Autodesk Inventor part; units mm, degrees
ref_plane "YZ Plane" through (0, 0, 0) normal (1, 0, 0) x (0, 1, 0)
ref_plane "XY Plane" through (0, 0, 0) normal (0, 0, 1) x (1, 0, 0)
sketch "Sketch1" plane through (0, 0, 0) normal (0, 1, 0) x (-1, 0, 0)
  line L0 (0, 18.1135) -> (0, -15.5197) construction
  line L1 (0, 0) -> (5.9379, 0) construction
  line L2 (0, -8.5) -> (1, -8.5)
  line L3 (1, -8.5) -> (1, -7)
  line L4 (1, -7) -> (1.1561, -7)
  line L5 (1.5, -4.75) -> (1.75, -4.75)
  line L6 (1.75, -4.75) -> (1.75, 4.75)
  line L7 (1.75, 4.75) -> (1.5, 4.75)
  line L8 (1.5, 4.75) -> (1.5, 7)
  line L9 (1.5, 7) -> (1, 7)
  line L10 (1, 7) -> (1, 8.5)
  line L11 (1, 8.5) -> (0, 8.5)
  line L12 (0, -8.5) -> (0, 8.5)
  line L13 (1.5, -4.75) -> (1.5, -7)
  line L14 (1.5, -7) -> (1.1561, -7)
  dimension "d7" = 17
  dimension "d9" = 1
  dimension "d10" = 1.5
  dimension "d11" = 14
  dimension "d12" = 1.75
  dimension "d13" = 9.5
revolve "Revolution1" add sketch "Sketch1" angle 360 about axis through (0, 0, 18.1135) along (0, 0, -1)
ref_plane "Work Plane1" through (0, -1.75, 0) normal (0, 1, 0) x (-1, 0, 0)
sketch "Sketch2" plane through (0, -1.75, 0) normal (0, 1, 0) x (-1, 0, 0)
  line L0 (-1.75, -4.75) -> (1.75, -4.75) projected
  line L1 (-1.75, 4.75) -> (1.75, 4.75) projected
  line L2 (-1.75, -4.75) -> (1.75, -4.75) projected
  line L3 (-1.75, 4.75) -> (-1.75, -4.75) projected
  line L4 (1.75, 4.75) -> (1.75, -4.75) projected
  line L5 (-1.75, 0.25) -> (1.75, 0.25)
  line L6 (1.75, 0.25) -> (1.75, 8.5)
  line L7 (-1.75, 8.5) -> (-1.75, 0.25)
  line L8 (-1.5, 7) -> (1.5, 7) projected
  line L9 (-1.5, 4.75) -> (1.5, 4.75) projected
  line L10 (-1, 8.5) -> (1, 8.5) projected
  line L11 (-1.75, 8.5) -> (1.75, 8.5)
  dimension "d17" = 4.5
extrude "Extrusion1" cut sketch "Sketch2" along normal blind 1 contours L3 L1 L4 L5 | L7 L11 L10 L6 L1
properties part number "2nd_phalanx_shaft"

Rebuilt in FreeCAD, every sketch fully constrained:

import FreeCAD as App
import Part
import Sketcher
from FreeCAD import Vector

doc = App.newDocument("Part")
body = doc.addObject("PartDesign::Body", "Body")

sketch1 = body.newObject("Sketcher::SketchObject", "Sketch")
sketch1.AttachmentSupport = (doc.getObject("XZ_Plane"), [""])
sketch1.MapMode = "FlatFace"
sketch1.addGeometry(Part.LineSegment(Vector(0, 8.5, 0), Vector(0, -8.5, 0)), False)
sketch1.addGeometry(Part.LineSegment(Vector(0, -8.5, 0), Vector(-1, -8.5, 0)), False)
sketch1.addGeometry(Part.LineSegment(Vector(-1, -8.5, 0), Vector(-1, -7, 0)), False)
sketch1.addGeometry(Part.LineSegment(Vector(-1, -7, 0), Vector(-1.5, -7, 0)), False)
sketch1.addGeometry(Part.LineSegment(Vector(-1.5, -7, 0), Vector(-1.5, -4.75, 0)), False)
sketch1.addGeometry(Part.LineSegment(Vector(-1.5, -4.75, 0), Vector(-1.75, -4.75, 0)), False)
sketch1.addGeometry(Part.LineSegment(Vector(-1.75, -4.75, 0), Vector(-1.75, 4.75, 0)), False)
sketch1.addGeometry(Part.LineSegment(Vector(-1.75, 4.75, 0), Vector(-1.5, 4.75, 0)), False)
sketch1.addGeometry(Part.LineSegment(Vector(-1.5, 4.75, 0), Vector(-1.5, 7, 0)), False)
sketch1.addGeometry(Part.LineSegment(Vector(-1.5, 7, 0), Vector(-1, 7, 0)), False)
sketch1.addGeometry(Part.LineSegment(Vector(-1, 7, 0), Vector(-1, 8.5, 0)), False)
sketch1.addGeometry(Part.LineSegment(Vector(-1, 8.5, 0), Vector(0, 8.5, 0)), False)
sketch1.addConstraint(Sketcher.Constraint("Coincident", 0, 2, 1, 1))
sketch1.addConstraint(Sketcher.Constraint("Coincident", 1, 2, 2, 1))
sketch1.addConstraint(Sketcher.Constraint("Coincident", 2, 2, 3, 1))
sketch1.addConstraint(Sketcher.Constraint("Coincident", 3, 2, 4, 1))
sketch1.addConstraint(Sketcher.Constraint("Coincident", 4, 2, 5, 1))
sketch1.addConstraint(Sketcher.Constraint("Coincident", 5, 2, 6, 1))
sketch1.addConstraint(Sketcher.Constraint("Coincident", 6, 2, 7, 1))
sketch1.addConstraint(Sketcher.Constraint("Coincident", 7, 2, 8, 1))
sketch1.addConstraint(Sketcher.Constraint("Coincident", 8, 2, 9, 1))
sketch1.addConstraint(Sketcher.Constraint("Coincident", 9, 2, 10, 1))
sketch1.addConstraint(Sketcher.Constraint("Coincident", 10, 2, 11, 1))
sketch1.addConstraint(Sketcher.Constraint("Coincident", 11, 2, 0, 1))
sketch1.addConstraint(Sketcher.Constraint("Vertical", 0))
sketch1.addConstraint(Sketcher.Constraint("Horizontal", 1))
sketch1.addConstraint(Sketcher.Constraint("Vertical", 2))
sketch1.addConstraint(Sketcher.Constraint("Horizontal", 3))
sketch1.addConstraint(Sketcher.Constraint("Vertical", 4))
sketch1.addConstraint(Sketcher.Constraint("Horizontal", 5))
sketch1.addConstraint(Sketcher.Constraint("Vertical", 6))
sketch1.addConstraint(Sketcher.Constraint("Horizontal", 7))
sketch1.addConstraint(Sketcher.Constraint("Vertical", 8))
sketch1.addConstraint(Sketcher.Constraint("Horizontal", 9))
sketch1.addConstraint(Sketcher.Constraint("Vertical", 10))
sketch1.addConstraint(Sketcher.Constraint("Horizontal", 11))
sketch1.addConstraint(Sketcher.Constraint("Symmetric", 0, 2, 11, 2, -1, 1))
sketch1.addConstraint(Sketcher.Constraint("Symmetric", 4, 2, 7, 2, -1))
sketch1.addConstraint(Sketcher.Constraint("Symmetric", 2, 2, 9, 2, -1))
sketch1.addConstraint(Sketcher.Constraint("DistanceX", 1, 2, 1, 1, 1.0))
sketch1.addConstraint(Sketcher.Constraint("DistanceY", 0, 2, 0, 1, 17.0))
sketch1.addConstraint(Sketcher.Constraint("DistanceY", 2, 1, 2, 2, 1.5))
sketch1.addConstraint(Sketcher.Constraint("DistanceY", 6, 1, 6, 2, 9.5))
sketch1.addConstraint(Sketcher.Constraint("DistanceX", 3, 2, -1, 1, 1.5))
sketch1.addConstraint(Sketcher.Constraint("DistanceX", 5, 2, -1, 1, 1.75))
revolution = body.newObject("PartDesign::Revolution", "Revolution")
revolution.Profile = sketch1
revolution.ReferenceAxis = (sketch1, ["V_Axis"])
revolution.Angle = 360

sketch2 = body.newObject("Sketcher::SketchObject", "Sketch001")
sketch2.AttachmentSupport = (doc.getObject("XZ_Plane"), [""])
sketch2.MapMode = "FlatFace"
sketch2.AttachmentOffset = App.Placement(Vector(0, 0, 1.75), App.Rotation())
sketch2.addGeometry(Part.LineSegment(Vector(1.75, 0.25, 0), Vector(-1.75, 0.25, 0)), False)
sketch2.addGeometry(Part.LineSegment(Vector(-1.75, 0.25, 0), Vector(-1.75, 8.5, 0)), False)
sketch2.addGeometry(Part.LineSegment(Vector(-1.75, 8.5, 0), Vector(1.75, 8.5, 0)), False)
sketch2.addGeometry(Part.LineSegment(Vector(1.75, 8.5, 0), Vector(1.75, 0.25, 0)), False)
sketch2.addConstraint(Sketcher.Constraint("Coincident", 0, 2, 1, 1))
sketch2.addConstraint(Sketcher.Constraint("Coincident", 1, 2, 2, 1))
sketch2.addConstraint(Sketcher.Constraint("Coincident", 2, 2, 3, 1))
sketch2.addConstraint(Sketcher.Constraint("Coincident", 3, 2, 0, 1))
sketch2.addConstraint(Sketcher.Constraint("Horizontal", 0))
sketch2.addConstraint(Sketcher.Constraint("Vertical", 1))
sketch2.addConstraint(Sketcher.Constraint("Horizontal", 2))
sketch2.addConstraint(Sketcher.Constraint("Vertical", 3))
sketch2.addConstraint(Sketcher.Constraint("DistanceX", 0, 2, 0, 1, 3.5))
sketch2.addConstraint(Sketcher.Constraint("DistanceY", 1, 1, 1, 2, 8.25))
sketch2.addConstraint(Sketcher.Constraint("DistanceY", -1, 1, 1, 2, 8.5))
sketch2.addConstraint(Sketcher.Constraint("DistanceX", 0, 2, -1, 1, 1.75))
pocket1 = body.newObject("PartDesign::Pocket", "Pocket")
pocket1.Profile = sketch2
pocket1.Length = 1

doc.recompute()
